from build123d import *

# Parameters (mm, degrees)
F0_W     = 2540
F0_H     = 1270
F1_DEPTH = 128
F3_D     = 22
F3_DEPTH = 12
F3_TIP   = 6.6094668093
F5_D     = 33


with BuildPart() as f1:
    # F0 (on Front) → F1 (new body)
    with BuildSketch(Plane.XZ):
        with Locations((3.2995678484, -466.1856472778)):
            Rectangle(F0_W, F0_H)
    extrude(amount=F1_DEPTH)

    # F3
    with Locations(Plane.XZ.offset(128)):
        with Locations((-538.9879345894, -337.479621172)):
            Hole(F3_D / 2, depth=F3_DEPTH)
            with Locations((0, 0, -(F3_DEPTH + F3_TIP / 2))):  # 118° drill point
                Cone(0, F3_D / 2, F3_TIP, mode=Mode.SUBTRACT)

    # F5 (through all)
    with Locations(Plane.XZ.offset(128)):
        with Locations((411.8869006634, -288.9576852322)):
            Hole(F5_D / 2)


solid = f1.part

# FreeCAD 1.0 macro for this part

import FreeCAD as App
import Part
import Sketcher


def add_polygon(sketch, points):
    """Adds a closed chain of lines whose ends are joined by coincident constraints."""
    first, n = sketch.GeometryCount, len(points)
    for a, b in zip(points, points[1:] + points[:1]):
        sketch.addGeometry(Part.LineSegment(App.Vector(*a, 0), App.Vector(*b, 0)), False)
    for i in range(n):
        sketch.addConstraint(Sketcher.Constraint("Coincident", first + i, 2, first + (i + 1) % n, 1))

doc = App.newDocument("Part")
params = doc.addObject("Spreadsheet::Sheet", "Params")
for row, (alias, value) in enumerate([
    ("sketch1_width", "2540 mm"),
    ("sketch1_height", "1270 mm"),
    ("pad1_length", "128 mm"),
    ("sketch2_diameter", "22 mm"),
    ("hole_diameter", "22 mm"),
    ("hole_depth", "12 mm"),
    ("sketch3_diameter", "33 mm"),
    ("hole2_diameter", "33 mm"),
], start=1):
    params.set(f"A{row}", alias)
    params.set(f"B{row}", "=" + value)
    params.setAlias(f"B{row}", alias)

body = doc.addObject("PartDesign::Body", "Body")

# Sketch on XZ plane
sketch1 = doc.addObject("Sketcher::SketchObject", "Sketch")
body.addObject(sketch1)
sketch1.AttachmentSupport = (doc.XZ_Plane, [""])
sketch1.MapMode = "FlatFace"
add_polygon(sketch1, [(-1267, 169), (-1267, -1101), (1273, -1101), (1273, 169)])  # lines 0-3
sketch1.addConstraint([
    Sketcher.Constraint("Vertical", 0),
    Sketcher.Constraint("Horizontal", 1),
    Sketcher.Constraint("Vertical", 2),
    Sketcher.Constraint("Horizontal", 3),
    Sketcher.Constraint("DistanceX", 1, 1, 1, 2, 2540.0),
    Sketcher.Constraint("DistanceY", 0, 2, 0, 1, 1270.0),
    Sketcher.Constraint("DistanceX", 0, 2, -1, 1, 1266.700432),
    Sketcher.Constraint("DistanceY", 0, 2, -1, 1, 1101.185647),
])
sketch1.setExpression("Constraints[8]", "Params.sketch1_width")
sketch1.setExpression("Constraints[9]", "Params.sketch1_height")
pad1 = doc.addObject("PartDesign::Pad", "Pad")
body.addObject(pad1)
pad1.Profile = sketch1
pad1.setExpression("Length", "Params.pad1_length")

# Sketch on XZ plane
sketch2 = doc.addObject("Sketcher::SketchObject", "Sketch001")
body.addObject(sketch2)
sketch2.AttachmentSupport = (doc.XZ_Plane, [""])
sketch2.MapMode = "FlatFace"
sketch2.AttachmentOffset = App.Placement(App.Vector(0, 0, 128), App.Rotation())
sketch2.addGeometry(Part.Circle(App.Vector(-539, -337, 0), App.Vector(0, 0, 1), 11), False)
sketch2.addConstraint([
    Sketcher.Constraint("Diameter", 0, 22.0),
    Sketcher.Constraint("DistanceY", 0, 3, -1, 1, 337.479621),
    Sketcher.Constraint("DistanceX", 0, 3, -1, 1, 538.987935),
])
sketch2.setExpression("Constraints[0]", "Params.sketch2_diameter")
doc.recompute()
hole = doc.addObject("PartDesign::Hole", "Hole")
body.addObject(hole)
hole.Profile = sketch2
hole.ThreadType = "None"
hole.setExpression("Diameter", "Params.hole_diameter")
hole.DepthType = "Dimension"
hole.setExpression("Depth", "Params.hole_depth")
hole.DrillPoint = "Angled"
hole.DrillPointAngle = 118

# Sketch on XZ plane
sketch3 = doc.addObject("Sketcher::SketchObject", "Sketch002")
body.addObject(sketch3)
sketch3.AttachmentSupport = (doc.XZ_Plane, [""])
sketch3.MapMode = "FlatFace"
sketch3.AttachmentOffset = App.Placement(App.Vector(0, 0, 128), App.Rotation())
sketch3.addGeometry(Part.Circle(App.Vector(412, -289, 0), App.Vector(0, 0, 1), 16), False)
sketch3.addConstraint([
    Sketcher.Constraint("Diameter", 0, 33.0),
    Sketcher.Constraint("DistanceX", -1, 1, 0, 3, 411.886901),
    Sketcher.Constraint("DistanceY", 0, 3, -1, 1, 288.957685),
])
sketch3.setExpression("Constraints[0]", "Params.sketch3_diameter")
doc.recompute()
hole2 = doc.addObject("PartDesign::Hole", "Hole001")
body.addObject(hole2)
hole2.Profile = sketch3
hole2.ThreadType = "None"
hole2.setExpression("Diameter", "Params.hole2_diameter")
hole2.DepthType = "ThroughAll"

doc.recompute()
